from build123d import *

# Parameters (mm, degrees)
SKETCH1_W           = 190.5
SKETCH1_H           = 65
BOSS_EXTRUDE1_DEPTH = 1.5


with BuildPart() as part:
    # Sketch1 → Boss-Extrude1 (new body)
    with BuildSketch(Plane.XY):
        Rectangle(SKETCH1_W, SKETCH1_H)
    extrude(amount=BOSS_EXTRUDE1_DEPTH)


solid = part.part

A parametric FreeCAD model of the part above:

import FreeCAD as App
import Part
import Sketcher

V = App.Vector
Q = App.Units.Quantity


def add_polygon(sketch, points):
    """Adds a closed chain of lines whose ends are joined by coincident constraints."""
    first, n = sketch.GeometryCount, len(points)
    for a, b in zip(points, points[1:] + points[:1]):
        sketch.addGeometry(Part.LineSegment(App.Vector(*a, 0), App.Vector(*b, 0)), False)
    for i in range(n):
        sketch.addConstraint(Sketcher.Constraint("Coincident", first + i, 2, first + (i + 1) % n, 1))

doc = App.newDocument("Part")
body = doc.addObject("PartDesign::Body", "Body")

# Sketch on XY plane
sketch1 = body.newObject("Sketcher::SketchObject", "Sketch")
sketch1.AttachmentSupport = (doc.getObject("XY_Plane"), [""])
sketch1.MapMode = "FlatFace"
add_polygon(sketch1, [(-95, 32), (-95, -32), (95, -32), (95, 32)])  # lines 0-3
sketch1.addConstraint([
    Sketcher.Constraint("Vertical", 0),
    Sketcher.Constraint("Horizontal", 1),
    Sketcher.Constraint("Vertical", 2),
    Sketcher.Constraint("Horizontal", 3),
    Sketcher.Constraint("Symmetric", 0, 2, 2, 2, -1, 1),
    Sketcher.Constraint("DistanceY", 0, 2, 0, 1, Q("65 mm")),
    Sketcher.Constraint("DistanceX", 1, 1, 1, 2, Q("190.5 mm")),
])
pad1 = body.newObject("PartDesign::Pad", "Pad")
pad1.Profile = sketch1
pad1.Length = 1.5

doc.recompute()
